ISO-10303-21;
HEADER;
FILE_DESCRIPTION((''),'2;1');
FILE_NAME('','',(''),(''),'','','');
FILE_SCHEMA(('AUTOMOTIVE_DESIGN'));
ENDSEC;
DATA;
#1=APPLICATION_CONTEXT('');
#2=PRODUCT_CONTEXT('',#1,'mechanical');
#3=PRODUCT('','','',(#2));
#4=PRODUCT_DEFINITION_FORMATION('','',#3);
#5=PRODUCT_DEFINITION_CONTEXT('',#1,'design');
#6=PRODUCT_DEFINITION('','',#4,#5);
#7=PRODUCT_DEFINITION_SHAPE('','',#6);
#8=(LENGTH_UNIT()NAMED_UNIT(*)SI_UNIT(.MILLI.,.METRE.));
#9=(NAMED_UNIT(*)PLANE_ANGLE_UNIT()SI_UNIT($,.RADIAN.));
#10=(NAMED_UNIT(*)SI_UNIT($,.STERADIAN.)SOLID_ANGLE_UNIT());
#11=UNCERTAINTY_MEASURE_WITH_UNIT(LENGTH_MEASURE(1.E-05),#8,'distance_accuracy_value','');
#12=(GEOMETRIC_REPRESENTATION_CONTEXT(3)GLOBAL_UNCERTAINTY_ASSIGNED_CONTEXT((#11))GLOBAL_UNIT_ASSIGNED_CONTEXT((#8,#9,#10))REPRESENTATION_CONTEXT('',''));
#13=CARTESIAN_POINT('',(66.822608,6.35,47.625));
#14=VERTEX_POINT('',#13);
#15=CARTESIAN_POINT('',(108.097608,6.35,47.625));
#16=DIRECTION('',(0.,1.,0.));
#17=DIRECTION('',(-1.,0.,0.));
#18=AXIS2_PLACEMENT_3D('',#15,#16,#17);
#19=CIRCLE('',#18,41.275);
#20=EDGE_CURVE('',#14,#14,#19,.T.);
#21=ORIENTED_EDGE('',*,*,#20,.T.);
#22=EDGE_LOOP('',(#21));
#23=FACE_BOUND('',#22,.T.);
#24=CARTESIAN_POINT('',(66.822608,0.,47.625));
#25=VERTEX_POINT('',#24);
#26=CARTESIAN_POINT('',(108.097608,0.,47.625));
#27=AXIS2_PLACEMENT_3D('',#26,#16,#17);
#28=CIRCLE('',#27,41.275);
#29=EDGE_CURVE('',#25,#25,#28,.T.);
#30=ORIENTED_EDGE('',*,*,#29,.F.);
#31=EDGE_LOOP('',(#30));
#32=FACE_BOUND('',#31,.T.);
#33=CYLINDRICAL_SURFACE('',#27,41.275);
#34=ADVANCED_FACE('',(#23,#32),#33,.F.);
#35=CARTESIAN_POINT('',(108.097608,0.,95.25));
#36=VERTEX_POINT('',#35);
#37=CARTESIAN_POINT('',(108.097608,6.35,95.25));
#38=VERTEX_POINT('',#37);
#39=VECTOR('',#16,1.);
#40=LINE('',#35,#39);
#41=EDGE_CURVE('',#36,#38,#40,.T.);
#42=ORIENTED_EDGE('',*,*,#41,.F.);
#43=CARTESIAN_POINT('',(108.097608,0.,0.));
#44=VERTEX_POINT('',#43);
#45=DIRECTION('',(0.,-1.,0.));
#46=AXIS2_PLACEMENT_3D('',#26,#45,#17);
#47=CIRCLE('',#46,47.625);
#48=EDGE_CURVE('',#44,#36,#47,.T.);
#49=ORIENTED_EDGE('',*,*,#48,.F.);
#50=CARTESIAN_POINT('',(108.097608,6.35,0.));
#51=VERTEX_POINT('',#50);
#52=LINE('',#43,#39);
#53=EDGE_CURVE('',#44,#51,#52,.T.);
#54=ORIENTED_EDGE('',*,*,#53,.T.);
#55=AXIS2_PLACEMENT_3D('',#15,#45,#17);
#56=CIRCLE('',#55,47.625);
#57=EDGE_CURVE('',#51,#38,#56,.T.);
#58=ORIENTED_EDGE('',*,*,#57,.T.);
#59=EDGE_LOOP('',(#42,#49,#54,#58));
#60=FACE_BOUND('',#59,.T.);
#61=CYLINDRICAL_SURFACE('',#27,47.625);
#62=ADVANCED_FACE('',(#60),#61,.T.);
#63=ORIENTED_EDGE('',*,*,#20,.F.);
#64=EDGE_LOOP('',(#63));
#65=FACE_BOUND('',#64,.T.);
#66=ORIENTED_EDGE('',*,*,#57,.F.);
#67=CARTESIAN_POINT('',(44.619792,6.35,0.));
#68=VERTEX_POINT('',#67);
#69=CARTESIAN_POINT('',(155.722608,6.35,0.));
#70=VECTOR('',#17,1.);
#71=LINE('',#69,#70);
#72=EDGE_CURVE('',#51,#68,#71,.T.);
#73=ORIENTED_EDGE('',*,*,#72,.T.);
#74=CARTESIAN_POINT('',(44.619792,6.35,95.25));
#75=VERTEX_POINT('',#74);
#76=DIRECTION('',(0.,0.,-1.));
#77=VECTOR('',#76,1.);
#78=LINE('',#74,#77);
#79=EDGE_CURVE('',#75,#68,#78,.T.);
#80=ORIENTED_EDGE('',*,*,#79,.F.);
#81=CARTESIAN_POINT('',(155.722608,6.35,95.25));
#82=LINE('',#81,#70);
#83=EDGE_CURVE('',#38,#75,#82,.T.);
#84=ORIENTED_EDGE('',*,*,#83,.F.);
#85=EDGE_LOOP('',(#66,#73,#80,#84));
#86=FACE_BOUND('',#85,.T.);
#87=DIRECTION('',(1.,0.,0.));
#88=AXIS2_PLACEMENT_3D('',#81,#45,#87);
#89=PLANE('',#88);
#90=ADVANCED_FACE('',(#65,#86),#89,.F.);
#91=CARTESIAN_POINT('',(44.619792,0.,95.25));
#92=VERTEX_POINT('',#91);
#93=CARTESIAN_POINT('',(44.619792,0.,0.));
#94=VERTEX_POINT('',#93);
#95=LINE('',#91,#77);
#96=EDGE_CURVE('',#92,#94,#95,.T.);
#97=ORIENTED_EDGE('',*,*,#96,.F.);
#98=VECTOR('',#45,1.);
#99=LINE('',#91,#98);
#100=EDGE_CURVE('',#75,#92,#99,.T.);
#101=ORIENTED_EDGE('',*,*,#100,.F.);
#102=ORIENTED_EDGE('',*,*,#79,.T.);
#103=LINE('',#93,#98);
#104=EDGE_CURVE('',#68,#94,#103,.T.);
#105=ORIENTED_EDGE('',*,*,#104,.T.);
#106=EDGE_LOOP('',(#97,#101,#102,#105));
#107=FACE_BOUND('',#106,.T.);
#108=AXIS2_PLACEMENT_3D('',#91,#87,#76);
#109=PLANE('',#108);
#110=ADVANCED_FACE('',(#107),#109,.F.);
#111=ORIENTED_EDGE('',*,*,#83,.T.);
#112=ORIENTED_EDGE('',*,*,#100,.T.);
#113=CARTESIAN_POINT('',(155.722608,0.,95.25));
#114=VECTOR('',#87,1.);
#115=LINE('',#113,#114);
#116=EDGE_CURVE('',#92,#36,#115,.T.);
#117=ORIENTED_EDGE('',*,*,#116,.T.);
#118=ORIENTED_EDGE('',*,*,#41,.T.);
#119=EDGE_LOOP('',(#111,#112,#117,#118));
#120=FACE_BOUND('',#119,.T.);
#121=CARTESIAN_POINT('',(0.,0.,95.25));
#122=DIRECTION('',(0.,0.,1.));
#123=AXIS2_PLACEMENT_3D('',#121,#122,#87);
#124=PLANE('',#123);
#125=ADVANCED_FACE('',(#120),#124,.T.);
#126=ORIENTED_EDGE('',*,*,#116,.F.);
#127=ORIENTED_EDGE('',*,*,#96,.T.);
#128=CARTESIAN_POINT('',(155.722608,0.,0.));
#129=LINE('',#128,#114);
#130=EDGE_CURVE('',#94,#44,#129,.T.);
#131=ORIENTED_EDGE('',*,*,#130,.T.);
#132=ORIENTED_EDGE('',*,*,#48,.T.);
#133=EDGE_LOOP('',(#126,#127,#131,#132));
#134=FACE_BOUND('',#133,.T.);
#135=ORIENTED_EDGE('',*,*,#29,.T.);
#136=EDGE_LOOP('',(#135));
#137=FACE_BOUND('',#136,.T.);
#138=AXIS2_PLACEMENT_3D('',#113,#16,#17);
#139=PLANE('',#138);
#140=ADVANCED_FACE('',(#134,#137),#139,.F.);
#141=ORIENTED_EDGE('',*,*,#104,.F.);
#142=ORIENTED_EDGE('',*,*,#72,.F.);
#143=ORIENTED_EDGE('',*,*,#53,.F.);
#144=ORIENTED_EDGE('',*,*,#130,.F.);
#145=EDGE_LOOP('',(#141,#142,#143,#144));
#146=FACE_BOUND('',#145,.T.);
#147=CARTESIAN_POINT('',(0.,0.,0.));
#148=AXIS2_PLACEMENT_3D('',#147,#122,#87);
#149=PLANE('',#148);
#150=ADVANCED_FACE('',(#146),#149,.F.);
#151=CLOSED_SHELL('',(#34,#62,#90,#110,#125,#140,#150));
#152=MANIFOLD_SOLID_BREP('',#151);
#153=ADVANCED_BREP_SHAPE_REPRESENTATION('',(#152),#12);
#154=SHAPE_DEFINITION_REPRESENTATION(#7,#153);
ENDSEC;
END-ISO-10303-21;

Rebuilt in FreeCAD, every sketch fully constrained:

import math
import FreeCAD as App
import Part
import Sketcher
from FreeCAD import Vector
Q = App.Units.Quantity


def add_polygon(sketch, points):
    """Adds a closed chain of lines whose ends are joined by coincident constraints."""
    first, n = sketch.GeometryCount, len(points)
    for a, b in zip(points, points[1:] + points[:1]):
        sketch.addGeometry(Part.LineSegment(App.Vector(*a, 0), App.Vector(*b, 0)), False)
    for i in range(n):
        sketch.addConstraint(Sketcher.Constraint("Coincident", first + i, 2, first + (i + 1) % n, 1))

doc = App.newDocument("Part")
body = doc.addObject("PartDesign::Body", "Body")

sketch1 = body.newObject("Sketcher::SketchObject", "Sketch")
sketch1.AttachmentSupport = (doc.getObject("XY_Plane"), [""])
sketch1.MapMode = "FlatFace"
add_polygon(sketch1, [(45, 6), (45, 0), (156, 0), (156, 6)])
sketch1.addConstraint(Sketcher.Constraint("Vertical", 0))
sketch1.addConstraint(Sketcher.Constraint("Horizontal", 1))
sketch1.addConstraint(Sketcher.Constraint("Vertical", 2))
sketch1.addConstraint(Sketcher.Constraint("Horizontal", 3))
sketch1.addConstraint(Sketcher.Constraint("PointOnObject", 0, 2, -1))
sketch1.addConstraint(Sketcher.Constraint("DistanceY", 0, 2, 0, 1, Q("0.25 in")))
sketch1.addConstraint(Sketcher.Constraint("DistanceX", 1, 1, 1, 2, 111.102816))
sketch1.addConstraint(Sketcher.Constraint("DistanceX", -1, 1, 0, 2, 44.619792))
pad1 = body.newObject("PartDesign::Pad", "Pad")
pad1.Profile = sketch1
pad1.Length = Q("3.75 in")

sketch2 = body.newObject("Sketcher::SketchObject", "Sketch001")
sketch2.AttachmentSupport = (doc.getObject("XZ_Plane"), [""])
sketch2.MapMode = "FlatFace"
sketch2.AttachmentOffset = App.Placement(Vector(0, 0, -0.25 * 25.4), App.Rotation())
sketch2.addGeometry(Part.Circle(Vector(108, 48, 0), Vector(0, 0, 1), 41), False)
sketch2.addConstraint(Sketcher.Constraint("Diameter", 0, Q("3.25 in")))
sketch2.addConstraint(Sketcher.Constraint("DistanceY", -1, 1, 0, 3, Q("1.875 in")))
sketch2.addConstraint(Sketcher.Constraint("DistanceX", -1, 1, 0, 3, 108.097608))
pocket1 = body.newObject("PartDesign::Pocket", "Pocket")
pocket1.Profile = sketch2
pocket1.Type = "ThroughAll"
pocket1.Reversed = True

sketch3 = body.newObject("Sketcher::SketchObject", "Sketch002")
sketch3.AttachmentSupport = (doc.getObject("XZ_Plane"), [""])
sketch3.MapMode = "FlatFace"
sketch3.AttachmentOffset = App.Placement(Vector(0, 0, -0.25 * 25.4), App.Rotation())
sketch3.addGeometry(Part.LineSegment(Vector(108, 95, 0), Vector(179, 95, 0)), False)
sketch3.addGeometry(Part.LineSegment(Vector(179, 95, 0), Vector(179, 0, 0)), False)
sketch3.addGeometry(Part.LineSegment(Vector(179, 0, 0), Vector(108, 0, 0)), False)
sketch3.addGeometry(Part.ArcOfCircle(Part.Circle(Vector(108, 48, 0), Vector(0, 0, 1), 48), math.radians(-90), math.radians(90)), False)
sketch3.addConstraint(Sketcher.Constraint("Coincident", 0, 2, 1, 1))
sketch3.addConstraint(Sketcher.Constraint("Coincident", 1, 2, 2, 1))
sketch3.addConstraint(Sketcher.Constraint("Tangent", 2, 2, 3, 1))
sketch3.addConstraint(Sketcher.Constraint("Tangent", 3, 2, 0, 1))
sketch3.addConstraint(Sketcher.Constraint("Horizontal", 0))
sketch3.addConstraint(Sketcher.Constraint("Vertical", 1))
sketch3.addConstraint(Sketcher.Constraint("Horizontal", 2))
sketch3.addConstraint(Sketcher.Constraint("PointOnObject", 1, 2, -1))
sketch3.addConstraint(Sketcher.Constraint("Radius", 3, Q("1.875 in")))
sketch3.addConstraint(Sketcher.Constraint("DistanceX", 0, 1, 0, 2, 70.953835))
sketch3.addConstraint(Sketcher.Constraint("DistanceX", -1, 1, 3, 3, 108.097608))
pocket2 = body.newObject("PartDesign::Pocket", "Pocket001")
pocket2.Profile = sketch3
pocket2.Type = "ThroughAll"
pocket2.Reversed = True

doc.recompute()
